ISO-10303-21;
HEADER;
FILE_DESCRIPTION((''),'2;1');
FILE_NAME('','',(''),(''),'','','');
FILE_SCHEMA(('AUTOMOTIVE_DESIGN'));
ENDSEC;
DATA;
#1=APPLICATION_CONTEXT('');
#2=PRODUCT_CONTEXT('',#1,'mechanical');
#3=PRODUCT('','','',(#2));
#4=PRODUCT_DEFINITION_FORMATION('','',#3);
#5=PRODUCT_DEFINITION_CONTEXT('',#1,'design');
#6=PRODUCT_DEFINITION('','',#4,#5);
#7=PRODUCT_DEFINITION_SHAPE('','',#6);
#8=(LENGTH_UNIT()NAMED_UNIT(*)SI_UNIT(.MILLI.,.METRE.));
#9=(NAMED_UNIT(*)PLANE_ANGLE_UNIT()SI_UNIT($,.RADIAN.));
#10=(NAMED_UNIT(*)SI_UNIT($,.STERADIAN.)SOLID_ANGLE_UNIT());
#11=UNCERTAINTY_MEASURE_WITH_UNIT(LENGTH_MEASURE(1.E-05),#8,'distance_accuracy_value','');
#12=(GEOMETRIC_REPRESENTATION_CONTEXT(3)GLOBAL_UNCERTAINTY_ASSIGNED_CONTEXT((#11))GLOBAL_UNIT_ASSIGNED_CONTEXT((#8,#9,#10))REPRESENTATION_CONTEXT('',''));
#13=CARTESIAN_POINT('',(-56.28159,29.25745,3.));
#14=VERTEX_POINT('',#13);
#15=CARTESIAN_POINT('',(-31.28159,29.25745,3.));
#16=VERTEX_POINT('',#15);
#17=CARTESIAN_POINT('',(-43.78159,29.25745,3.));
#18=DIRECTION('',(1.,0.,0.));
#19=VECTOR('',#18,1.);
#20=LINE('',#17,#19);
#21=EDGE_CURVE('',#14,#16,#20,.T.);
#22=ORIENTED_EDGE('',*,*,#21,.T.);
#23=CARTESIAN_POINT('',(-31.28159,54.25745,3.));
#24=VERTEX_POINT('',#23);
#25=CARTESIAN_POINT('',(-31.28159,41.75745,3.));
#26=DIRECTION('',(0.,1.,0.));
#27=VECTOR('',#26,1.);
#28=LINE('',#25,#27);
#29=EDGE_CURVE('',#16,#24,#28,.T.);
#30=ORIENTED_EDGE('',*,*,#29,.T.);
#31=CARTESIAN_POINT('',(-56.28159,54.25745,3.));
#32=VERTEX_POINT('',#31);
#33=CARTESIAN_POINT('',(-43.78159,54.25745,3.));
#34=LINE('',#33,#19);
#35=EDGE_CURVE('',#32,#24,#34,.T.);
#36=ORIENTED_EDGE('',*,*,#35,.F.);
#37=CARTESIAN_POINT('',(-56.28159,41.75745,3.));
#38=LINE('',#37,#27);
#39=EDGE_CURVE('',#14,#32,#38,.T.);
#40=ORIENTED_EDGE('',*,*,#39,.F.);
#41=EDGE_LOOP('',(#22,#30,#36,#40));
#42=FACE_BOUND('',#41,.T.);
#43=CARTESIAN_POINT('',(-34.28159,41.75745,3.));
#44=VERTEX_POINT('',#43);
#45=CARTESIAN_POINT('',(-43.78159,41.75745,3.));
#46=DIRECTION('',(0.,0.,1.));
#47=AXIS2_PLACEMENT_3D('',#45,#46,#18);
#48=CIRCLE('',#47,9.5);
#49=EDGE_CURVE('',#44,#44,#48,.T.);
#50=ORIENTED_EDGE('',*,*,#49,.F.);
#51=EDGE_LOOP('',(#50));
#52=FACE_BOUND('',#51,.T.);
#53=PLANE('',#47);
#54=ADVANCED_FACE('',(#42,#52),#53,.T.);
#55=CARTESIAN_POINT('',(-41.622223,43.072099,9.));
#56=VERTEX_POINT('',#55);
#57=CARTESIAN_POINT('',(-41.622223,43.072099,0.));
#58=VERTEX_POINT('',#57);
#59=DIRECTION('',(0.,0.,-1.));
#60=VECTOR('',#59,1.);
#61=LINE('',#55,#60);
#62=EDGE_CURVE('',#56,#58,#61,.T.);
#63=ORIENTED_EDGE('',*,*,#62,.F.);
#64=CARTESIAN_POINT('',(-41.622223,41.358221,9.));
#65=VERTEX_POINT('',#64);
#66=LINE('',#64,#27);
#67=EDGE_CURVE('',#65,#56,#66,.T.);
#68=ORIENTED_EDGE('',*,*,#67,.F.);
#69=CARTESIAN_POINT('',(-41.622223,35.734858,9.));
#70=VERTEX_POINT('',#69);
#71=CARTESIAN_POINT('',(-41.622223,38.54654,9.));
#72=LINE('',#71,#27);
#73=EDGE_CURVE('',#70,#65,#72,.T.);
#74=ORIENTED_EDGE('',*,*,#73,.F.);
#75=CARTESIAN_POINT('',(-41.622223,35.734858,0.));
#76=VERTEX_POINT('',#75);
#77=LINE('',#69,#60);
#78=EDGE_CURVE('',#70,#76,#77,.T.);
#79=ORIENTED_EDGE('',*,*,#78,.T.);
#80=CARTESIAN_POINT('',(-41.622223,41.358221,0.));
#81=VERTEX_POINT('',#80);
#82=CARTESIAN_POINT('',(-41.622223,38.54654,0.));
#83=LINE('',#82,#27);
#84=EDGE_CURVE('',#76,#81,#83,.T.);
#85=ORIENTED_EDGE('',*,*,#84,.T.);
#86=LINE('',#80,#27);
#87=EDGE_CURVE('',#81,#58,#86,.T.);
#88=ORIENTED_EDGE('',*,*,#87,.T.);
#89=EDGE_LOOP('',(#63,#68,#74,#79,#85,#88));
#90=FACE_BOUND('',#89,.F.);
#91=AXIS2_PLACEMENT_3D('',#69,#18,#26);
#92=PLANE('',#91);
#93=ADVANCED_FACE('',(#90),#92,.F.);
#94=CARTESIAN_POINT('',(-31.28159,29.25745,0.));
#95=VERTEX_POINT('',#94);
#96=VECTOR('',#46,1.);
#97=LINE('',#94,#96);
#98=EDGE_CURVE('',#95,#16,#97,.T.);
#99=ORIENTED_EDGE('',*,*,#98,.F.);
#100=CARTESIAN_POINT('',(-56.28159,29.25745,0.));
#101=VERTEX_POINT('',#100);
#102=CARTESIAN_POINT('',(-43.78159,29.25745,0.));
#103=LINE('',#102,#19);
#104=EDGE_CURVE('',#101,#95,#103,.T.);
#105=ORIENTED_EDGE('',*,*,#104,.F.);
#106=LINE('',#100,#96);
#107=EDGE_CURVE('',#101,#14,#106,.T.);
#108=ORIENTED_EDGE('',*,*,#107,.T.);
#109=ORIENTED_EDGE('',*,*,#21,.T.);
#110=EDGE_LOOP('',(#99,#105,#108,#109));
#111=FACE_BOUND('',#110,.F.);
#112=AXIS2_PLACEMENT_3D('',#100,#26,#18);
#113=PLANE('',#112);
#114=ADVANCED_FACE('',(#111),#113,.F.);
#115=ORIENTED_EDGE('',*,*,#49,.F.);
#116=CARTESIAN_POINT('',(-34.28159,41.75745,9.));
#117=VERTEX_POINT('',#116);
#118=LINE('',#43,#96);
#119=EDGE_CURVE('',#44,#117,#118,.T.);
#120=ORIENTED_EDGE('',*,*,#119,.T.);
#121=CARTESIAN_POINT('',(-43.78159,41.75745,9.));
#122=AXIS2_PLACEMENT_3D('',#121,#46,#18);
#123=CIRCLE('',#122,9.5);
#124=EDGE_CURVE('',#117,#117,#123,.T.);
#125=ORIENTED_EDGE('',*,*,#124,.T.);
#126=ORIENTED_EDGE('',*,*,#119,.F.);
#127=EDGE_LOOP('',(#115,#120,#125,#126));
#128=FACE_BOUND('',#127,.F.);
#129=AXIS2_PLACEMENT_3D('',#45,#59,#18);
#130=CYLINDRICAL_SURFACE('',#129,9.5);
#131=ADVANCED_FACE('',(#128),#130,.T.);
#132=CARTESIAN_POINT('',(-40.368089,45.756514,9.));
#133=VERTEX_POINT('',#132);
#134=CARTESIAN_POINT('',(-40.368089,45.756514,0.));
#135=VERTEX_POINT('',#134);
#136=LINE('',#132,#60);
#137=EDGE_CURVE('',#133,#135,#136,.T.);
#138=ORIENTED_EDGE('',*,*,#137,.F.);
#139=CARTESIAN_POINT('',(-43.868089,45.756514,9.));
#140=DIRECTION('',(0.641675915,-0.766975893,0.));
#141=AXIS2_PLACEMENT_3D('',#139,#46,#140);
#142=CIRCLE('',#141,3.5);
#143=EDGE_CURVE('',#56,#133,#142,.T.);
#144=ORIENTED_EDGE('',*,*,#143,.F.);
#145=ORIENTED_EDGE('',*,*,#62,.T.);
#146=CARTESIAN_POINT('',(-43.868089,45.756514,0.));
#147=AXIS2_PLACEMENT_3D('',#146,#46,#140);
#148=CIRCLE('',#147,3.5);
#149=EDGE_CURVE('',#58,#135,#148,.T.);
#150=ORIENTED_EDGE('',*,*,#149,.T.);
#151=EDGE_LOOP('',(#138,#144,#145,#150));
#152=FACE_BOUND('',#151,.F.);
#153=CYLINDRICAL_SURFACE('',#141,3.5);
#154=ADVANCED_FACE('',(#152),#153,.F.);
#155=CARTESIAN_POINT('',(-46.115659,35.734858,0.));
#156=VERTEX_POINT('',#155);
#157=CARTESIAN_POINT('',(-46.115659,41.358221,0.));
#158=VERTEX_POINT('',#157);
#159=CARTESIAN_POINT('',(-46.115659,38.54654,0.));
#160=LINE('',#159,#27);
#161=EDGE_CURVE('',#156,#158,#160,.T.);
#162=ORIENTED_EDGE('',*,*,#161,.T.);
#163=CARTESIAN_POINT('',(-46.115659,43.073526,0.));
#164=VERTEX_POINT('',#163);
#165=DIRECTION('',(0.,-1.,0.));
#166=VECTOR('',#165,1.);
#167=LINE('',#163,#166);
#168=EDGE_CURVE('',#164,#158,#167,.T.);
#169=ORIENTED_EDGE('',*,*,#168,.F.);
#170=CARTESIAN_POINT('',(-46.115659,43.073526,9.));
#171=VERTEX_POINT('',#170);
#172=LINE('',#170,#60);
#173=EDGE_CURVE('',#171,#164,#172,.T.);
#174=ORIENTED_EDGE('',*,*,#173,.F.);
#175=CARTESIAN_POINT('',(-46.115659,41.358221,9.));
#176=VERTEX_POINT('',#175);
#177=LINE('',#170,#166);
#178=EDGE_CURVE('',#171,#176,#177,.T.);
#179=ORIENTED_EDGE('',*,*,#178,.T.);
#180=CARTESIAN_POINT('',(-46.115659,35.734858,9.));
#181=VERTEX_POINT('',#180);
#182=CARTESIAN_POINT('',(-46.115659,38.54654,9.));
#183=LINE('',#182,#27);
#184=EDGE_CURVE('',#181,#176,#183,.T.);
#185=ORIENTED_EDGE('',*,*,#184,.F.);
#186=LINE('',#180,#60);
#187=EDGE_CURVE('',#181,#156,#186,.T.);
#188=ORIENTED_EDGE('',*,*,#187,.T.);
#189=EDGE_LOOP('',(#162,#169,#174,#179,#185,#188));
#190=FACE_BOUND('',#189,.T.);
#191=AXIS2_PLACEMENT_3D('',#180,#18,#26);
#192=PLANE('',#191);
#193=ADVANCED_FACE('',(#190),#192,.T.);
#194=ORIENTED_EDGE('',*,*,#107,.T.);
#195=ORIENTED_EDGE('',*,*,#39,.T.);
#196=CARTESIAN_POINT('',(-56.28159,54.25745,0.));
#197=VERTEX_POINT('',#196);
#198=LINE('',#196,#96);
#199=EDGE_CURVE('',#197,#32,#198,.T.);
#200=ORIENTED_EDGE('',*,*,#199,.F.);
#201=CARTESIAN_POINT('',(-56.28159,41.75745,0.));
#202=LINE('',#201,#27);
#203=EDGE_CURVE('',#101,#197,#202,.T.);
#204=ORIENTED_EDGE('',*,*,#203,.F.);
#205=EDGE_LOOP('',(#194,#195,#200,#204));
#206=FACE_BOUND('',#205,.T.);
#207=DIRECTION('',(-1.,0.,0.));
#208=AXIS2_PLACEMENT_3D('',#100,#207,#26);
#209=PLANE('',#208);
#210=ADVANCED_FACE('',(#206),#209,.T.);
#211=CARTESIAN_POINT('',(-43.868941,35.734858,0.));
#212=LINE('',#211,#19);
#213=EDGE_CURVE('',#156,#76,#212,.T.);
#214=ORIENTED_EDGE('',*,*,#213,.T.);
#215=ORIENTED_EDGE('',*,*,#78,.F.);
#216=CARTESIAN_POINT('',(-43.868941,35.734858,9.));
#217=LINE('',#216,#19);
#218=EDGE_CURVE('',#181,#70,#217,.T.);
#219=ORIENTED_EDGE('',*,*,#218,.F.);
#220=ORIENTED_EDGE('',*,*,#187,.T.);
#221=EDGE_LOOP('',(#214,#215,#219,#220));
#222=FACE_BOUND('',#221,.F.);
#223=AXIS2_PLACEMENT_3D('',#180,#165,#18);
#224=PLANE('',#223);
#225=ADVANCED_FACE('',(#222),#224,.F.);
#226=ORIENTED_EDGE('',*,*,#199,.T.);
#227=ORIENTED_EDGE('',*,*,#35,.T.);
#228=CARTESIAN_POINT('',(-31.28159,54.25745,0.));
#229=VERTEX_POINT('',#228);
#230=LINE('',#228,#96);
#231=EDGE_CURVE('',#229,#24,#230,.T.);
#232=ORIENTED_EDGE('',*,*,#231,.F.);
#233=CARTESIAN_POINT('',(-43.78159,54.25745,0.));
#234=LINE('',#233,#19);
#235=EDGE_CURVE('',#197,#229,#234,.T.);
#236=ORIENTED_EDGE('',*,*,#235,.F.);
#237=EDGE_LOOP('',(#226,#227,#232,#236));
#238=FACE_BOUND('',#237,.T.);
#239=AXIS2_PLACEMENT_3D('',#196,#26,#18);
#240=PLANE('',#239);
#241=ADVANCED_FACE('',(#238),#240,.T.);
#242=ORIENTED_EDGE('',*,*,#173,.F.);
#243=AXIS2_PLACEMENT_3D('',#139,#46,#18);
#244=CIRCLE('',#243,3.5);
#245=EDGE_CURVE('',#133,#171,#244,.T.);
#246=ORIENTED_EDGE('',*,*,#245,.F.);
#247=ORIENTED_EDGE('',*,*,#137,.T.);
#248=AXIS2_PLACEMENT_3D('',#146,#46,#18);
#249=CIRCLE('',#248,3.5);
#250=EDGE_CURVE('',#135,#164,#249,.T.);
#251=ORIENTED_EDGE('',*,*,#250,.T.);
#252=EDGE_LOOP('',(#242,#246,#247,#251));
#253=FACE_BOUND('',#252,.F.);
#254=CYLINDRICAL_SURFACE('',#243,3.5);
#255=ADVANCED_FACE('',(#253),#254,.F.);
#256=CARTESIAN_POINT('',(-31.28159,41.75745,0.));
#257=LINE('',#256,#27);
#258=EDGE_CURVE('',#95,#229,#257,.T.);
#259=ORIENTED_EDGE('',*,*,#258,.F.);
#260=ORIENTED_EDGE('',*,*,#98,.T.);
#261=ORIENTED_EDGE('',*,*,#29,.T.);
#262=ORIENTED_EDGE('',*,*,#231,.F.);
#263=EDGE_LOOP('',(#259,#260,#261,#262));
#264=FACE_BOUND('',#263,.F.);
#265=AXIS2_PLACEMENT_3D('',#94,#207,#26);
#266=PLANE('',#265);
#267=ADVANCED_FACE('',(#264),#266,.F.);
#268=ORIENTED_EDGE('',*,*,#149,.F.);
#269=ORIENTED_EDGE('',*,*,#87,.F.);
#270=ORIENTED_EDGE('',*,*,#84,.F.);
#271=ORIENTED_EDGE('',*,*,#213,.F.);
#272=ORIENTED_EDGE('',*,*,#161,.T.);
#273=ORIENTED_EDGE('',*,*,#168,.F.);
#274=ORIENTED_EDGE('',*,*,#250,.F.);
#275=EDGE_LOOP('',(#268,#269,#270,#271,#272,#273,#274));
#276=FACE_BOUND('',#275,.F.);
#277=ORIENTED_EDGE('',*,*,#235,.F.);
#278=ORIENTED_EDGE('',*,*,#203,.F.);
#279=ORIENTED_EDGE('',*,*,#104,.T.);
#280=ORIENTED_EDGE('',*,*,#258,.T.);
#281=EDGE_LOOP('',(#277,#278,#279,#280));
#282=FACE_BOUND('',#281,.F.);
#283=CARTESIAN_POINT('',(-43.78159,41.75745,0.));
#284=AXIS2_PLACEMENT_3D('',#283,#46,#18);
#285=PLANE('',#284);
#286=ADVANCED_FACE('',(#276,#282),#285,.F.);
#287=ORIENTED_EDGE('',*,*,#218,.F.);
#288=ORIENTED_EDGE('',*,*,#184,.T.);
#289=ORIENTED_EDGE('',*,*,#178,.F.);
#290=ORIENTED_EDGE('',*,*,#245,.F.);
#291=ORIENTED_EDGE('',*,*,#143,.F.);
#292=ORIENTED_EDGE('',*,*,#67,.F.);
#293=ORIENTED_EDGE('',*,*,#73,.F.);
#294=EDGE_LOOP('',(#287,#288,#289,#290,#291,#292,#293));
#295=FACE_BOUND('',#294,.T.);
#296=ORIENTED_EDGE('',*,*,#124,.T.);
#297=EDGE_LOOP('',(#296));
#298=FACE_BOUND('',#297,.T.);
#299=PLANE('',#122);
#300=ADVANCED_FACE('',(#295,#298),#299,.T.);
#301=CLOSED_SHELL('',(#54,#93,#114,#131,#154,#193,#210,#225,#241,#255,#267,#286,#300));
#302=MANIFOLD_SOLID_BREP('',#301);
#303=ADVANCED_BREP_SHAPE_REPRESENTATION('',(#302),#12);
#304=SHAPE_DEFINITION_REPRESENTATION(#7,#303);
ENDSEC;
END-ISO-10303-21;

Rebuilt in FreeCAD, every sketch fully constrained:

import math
import FreeCAD as App
import Part
import Sketcher
Q = App.Units.Quantity

doc = App.newDocument("Part")
body = doc.addObject("PartDesign::Body", "Body")

# Sketch on XY plane
sketch1 = doc.addObject("Sketcher::SketchObject", "Sketch")
body.addObject(sketch1)
sketch1.AttachmentSupport = (doc.XY_Plane, [""])
sketch1.MapMode = "FlatFace"
sketch1.addGeometry(Part.LineSegment(App.Vector(-56, 54, 0), App.Vector(-56, 29, 0)), False)
sketch1.addGeometry(Part.LineSegment(App.Vector(-56, 29, 0), App.Vector(-31, 29, 0)), False)
sketch1.addGeometry(Part.LineSegment(App.Vector(-31, 29, 0), App.Vector(-31, 54, 0)), False)
sketch1.addGeometry(Part.LineSegment(App.Vector(-31, 54, 0), App.Vector(-56, 54, 0)), False)
sketch1.addConstraint(Sketcher.Constraint("Coincident", 0, 2, 1, 1))
sketch1.addConstraint(Sketcher.Constraint("Coincident", 1, 2, 2, 1))
sketch1.addConstraint(Sketcher.Constraint("Coincident", 2, 2, 3, 1))
sketch1.addConstraint(Sketcher.Constraint("Coincident", 3, 2, 0, 1))
sketch1.addConstraint(Sketcher.Constraint("Vertical", 0))
sketch1.addConstraint(Sketcher.Constraint("Horizontal", 1))
sketch1.addConstraint(Sketcher.Constraint("Vertical", 2))
sketch1.addConstraint(Sketcher.Constraint("Horizontal", 3))
sketch1.addConstraint(Sketcher.Constraint("Equal", 3, 0))
sketch1.addConstraint(Sketcher.Constraint("DistanceX", 1, 1, 1, 2, Q("25 mm")))
sketch1.addConstraint(Sketcher.Constraint("DistanceX", 0, 2, -1, 1, Q("56.28159 mm")))
sketch1.addConstraint(Sketcher.Constraint("DistanceY", -1, 1, 0, 2, Q("29.25745 mm")))
pad1 = doc.addObject("PartDesign::Pad", "Pad")
body.addObject(pad1)
pad1.Profile = sketch1
pad1.Length = 3

# Sketch on XY plane
sketch2 = doc.addObject("Sketcher::SketchObject", "Sketch001")
body.addObject(sketch2)
sketch2.AttachmentSupport = (doc.XY_Plane, [""])
sketch2.MapMode = "FlatFace"
sketch2.AttachmentOffset = App.Placement(App.Vector(0, 0, 3), App.Rotation())
sketch2.addGeometry(Part.Circle(App.Vector(-44, 42, 0), App.Vector(0, 0, 1), 10), False)
sketch2.addConstraint(Sketcher.Constraint("Diameter", 0, Q("19 mm")))
sketch2.addConstraint(Sketcher.Constraint("DistanceX", 0, 3, -1, 1, Q("43.78159 mm")))
sketch2.addConstraint(Sketcher.Constraint("DistanceY", -1, 1, 0, 3, Q("41.75745 mm")))
pad2 = doc.addObject("PartDesign::Pad", "Pad001")
body.addObject(pad2)
pad2.Profile = sketch2
pad2.Length = 6

# Sketch on XY plane
sketch3 = doc.addObject("Sketcher::SketchObject", "Sketch002")
body.addObject(sketch3)
sketch3.AttachmentSupport = (doc.XY_Plane, [""])
sketch3.MapMode = "FlatFace"
sketch3.AttachmentOffset = App.Placement(App.Vector(0, 0, 9), App.Rotation())
sketch3.addGeometry(Part.LineSegment(App.Vector(-46.1, 41.4, 0), App.Vector(-46.1, 35.7, 0)), False)
sketch3.addGeometry(Part.LineSegment(App.Vector(-46.1, 35.7, 0), App.Vector(-41.6, 35.7, 0)), False)
sketch3.addGeometry(Part.LineSegment(App.Vector(-41.6, 35.7, 0), App.Vector(-41.6, 41.4, 0)), False)
sketch3.addGeometry(Part.LineSegment(App.Vector(-41.6, 41.4, 0), App.Vector(-41.6, 43.1, 0)), False)
sketch3.addGeometry(Part.ArcOfCircle(Part.Circle(App.Vector(-43.9, 45.8, 0), App.Vector(0, 0, 1), 3.5), math.radians(-50), math.radians(0)), False)
sketch3.addGeometry(Part.ArcOfCircle(Part.Circle(App.Vector(-43.9, 45.8, 0), App.Vector(0, 0, 1), 3.5), math.radians(0), math.radians(230)), False)
sketch3.addGeometry(Part.LineSegment(App.Vector(-46.1, 43.1, 0), App.Vector(-46.1, 41.4, 0)), False)
sketch3.addConstraint(Sketcher.Constraint("Coincident", 0, 2, 1, 1))
sketch3.addConstraint(Sketcher.Constraint("Coincident", 1, 2, 2, 1))
sketch3.addConstraint(Sketcher.Constraint("Coincident", 2, 2, 3, 1))
sketch3.addConstraint(Sketcher.Constraint("Coincident", 3, 2, 4, 1))
sketch3.addConstraint(Sketcher.Constraint("Tangent", 4, 2, 5, 1))
sketch3.addConstraint(Sketcher.Constraint("Coincident", 5, 2, 6, 1))
sketch3.addConstraint(Sketcher.Constraint("Coincident", 6, 2, 0, 1))
sketch3.addConstraint(Sketcher.Constraint("Vertical", 0))
sketch3.addConstraint(Sketcher.Constraint("Horizontal", 1))
sketch3.addConstraint(Sketcher.Constraint("Vertical", 2))
sketch3.addConstraint(Sketcher.Constraint("Vertical", 3))
sketch3.addConstraint(Sketcher.Constraint("Vertical", 6))
sketch3.addConstraint(Sketcher.Constraint("Equal", 4, 5))
sketch3.addConstraint(Sketcher.Constraint("Horizontal", 5, 3, 4, 2))
sketch3.addConstraint(Sketcher.Constraint("Horizontal", 2, 2, 6, 2))
sketch3.addConstraint(Sketcher.Constraint("Radius", 4, Q("3.5 mm")))
sketch3.addConstraint(Sketcher.Constraint("DistanceY", 3, 1, 3, 2, Q("1.713878 mm")))
sketch3.addConstraint(Sketcher.Constraint("DistanceY", -1, 1, 3, 2, Q("43.072099 mm")))
sketch3.addConstraint(Sketcher.Constraint("DistanceX", 1, 1, 1, 2, Q("4.493436 mm")))
sketch3.addConstraint(Sketcher.Constraint("DistanceY", 0, 2, 0, 1, Q("5.623362 mm")))
sketch3.addConstraint(Sketcher.Constraint("DistanceY", 6, 2, 6, 1, Q("1.715305 mm")))
sketch3.addConstraint(Sketcher.Constraint("DistanceX", 4, 3, -1, 1, Q("43.868089 mm")))
pocket1 = doc.addObject("PartDesign::Pocket", "Pocket")
body.addObject(pocket1)
pocket1.Profile = sketch3
pocket1.Length = 9

doc.recompute()
